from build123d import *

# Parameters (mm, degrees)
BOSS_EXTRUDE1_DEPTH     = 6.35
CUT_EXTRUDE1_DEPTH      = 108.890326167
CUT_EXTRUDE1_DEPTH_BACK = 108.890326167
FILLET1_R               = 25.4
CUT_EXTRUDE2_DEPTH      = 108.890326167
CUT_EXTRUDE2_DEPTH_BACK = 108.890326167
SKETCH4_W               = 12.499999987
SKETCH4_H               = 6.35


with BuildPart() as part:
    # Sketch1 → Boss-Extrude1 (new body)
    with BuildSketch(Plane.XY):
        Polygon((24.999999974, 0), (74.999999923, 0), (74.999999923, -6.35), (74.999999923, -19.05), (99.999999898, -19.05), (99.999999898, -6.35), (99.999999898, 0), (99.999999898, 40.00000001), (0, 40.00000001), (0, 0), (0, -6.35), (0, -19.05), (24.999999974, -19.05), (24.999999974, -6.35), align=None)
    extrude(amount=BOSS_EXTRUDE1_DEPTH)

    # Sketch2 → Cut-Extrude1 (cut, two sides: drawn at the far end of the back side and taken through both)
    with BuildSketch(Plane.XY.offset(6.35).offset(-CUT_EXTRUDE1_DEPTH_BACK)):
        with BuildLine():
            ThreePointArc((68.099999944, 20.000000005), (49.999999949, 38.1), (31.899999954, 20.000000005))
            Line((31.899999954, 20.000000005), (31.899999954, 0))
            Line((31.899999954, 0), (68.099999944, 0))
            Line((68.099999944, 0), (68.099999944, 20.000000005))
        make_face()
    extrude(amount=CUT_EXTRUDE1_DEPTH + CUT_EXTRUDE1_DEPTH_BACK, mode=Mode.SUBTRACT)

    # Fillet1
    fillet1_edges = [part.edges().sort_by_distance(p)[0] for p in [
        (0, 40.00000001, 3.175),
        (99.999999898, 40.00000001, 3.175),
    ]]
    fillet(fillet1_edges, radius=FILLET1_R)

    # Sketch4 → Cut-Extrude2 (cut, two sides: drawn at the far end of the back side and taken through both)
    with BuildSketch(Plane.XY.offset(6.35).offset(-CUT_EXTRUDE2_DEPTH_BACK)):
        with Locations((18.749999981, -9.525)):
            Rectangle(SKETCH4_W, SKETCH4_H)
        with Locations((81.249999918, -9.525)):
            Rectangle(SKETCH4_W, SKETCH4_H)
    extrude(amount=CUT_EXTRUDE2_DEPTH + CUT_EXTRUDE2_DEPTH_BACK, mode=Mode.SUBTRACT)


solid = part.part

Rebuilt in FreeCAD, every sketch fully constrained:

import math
import FreeCAD as App
import Part
import Sketcher
Q = App.Units.Quantity


def edges_at(feature, points):
    """Names of the edges that pass closest to the given points."""
    edges = feature.Shape.Edges
    near = lambda p: min(range(len(edges)), key=lambda i: edges[i].distToShape(Part.Vertex(*p))[0])
    return sorted({f"Edge{near(p) + 1}" for p in points})

doc = App.newDocument("Part")
params = doc.addObject("Spreadsheet::Sheet", "Params")
for row, (alias, value) in enumerate([
    ("sketch1_width", "50 mm"),
    ("sketch1_width2", "25 mm"),
    ("sketch1_height", "19.05 mm"),
    ("pad1_length", "6.35 mm"),
    ("sketch2_radius", "18.1 mm"),
    ("sketch2_height", "20 mm"),
    ("fillet_radius", "25.4 mm"),
    ("sketch3_width", "12.5 mm"),
    ("sketch3_height", "6.35 mm"),
], start=1):
    params.set(f"A{row}", alias)
    params.set(f"B{row}", "=" + value)
    params.setAlias(f"B{row}", alias)

body = doc.addObject("PartDesign::Body", "Body")

sketch1 = body.newObject("Sketcher::SketchObject", "Sketch")
sketch1.AttachmentSupport = (doc.getObject("XY_Plane"), [""])
sketch1.MapMode = "FlatFace"
sketch1.addGeometry([
    Part.LineSegment(App.Vector(25, 0, 0), App.Vector(75, 0, 0)),
    Part.LineSegment(App.Vector(75, 0, 0), App.Vector(75, -19, 0)),
    Part.LineSegment(App.Vector(75, -19, 0), App.Vector(100, -19, 0)),
    Part.LineSegment(App.Vector(100, -19, 0), App.Vector(100, 40, 0)),
    Part.LineSegment(App.Vector(100, 40, 0), App.Vector(0, 40, 0)),
    Part.LineSegment(App.Vector(0, 40, 0), App.Vector(0, -19, 0)),
    Part.LineSegment(App.Vector(0, -19, 0), App.Vector(25, -19, 0)),
    Part.LineSegment(App.Vector(25, -19, 0), App.Vector(25, 0, 0)),
], False)
sketch1.addConstraint([
    Sketcher.Constraint("Coincident", 0, 2, 1, 1),
    Sketcher.Constraint("Coincident", 1, 2, 2, 1),
    Sketcher.Constraint("Coincident", 2, 2, 3, 1),
    Sketcher.Constraint("Coincident", 3, 2, 4, 1),
    Sketcher.Constraint("Coincident", 4, 2, 5, 1),
    Sketcher.Constraint("Coincident", 5, 2, 6, 1),
    Sketcher.Constraint("Coincident", 6, 2, 7, 1),
    Sketcher.Constraint("Coincident", 7, 2, 0, 1),
    Sketcher.Constraint("Horizontal", 0),
    Sketcher.Constraint("Vertical", 1),
    Sketcher.Constraint("Horizontal", 2),
    Sketcher.Constraint("Vertical", 3),
    Sketcher.Constraint("Horizontal", 4),
    Sketcher.Constraint("Vertical", 5),
    Sketcher.Constraint("Horizontal", 6),
    Sketcher.Constraint("Vertical", 7),
    Sketcher.Constraint("PointOnObject", 0, 2, -1),
    Sketcher.Constraint("PointOnObject", 4, 2, -2),
    Sketcher.Constraint("Horizontal", 2, 2, 5, 2),
    Sketcher.Constraint("Equal", 2, 6),
    Sketcher.Constraint("DistanceX", 0, 1, 0, 2, Q("50 mm")),
    Sketcher.Constraint("DistanceX", 2, 1, 2, 2, Q("25 mm")),
    Sketcher.Constraint("DistanceY", -1, 1, 3, 2, Q("40 mm")),
    Sketcher.Constraint("DistanceY", 1, 2, 1, 1, Q("19.05 mm")),
])
sketch1.setExpression("Constraints[20]", "Params.sketch1_width")
sketch1.setExpression("Constraints[21]", "Params.sketch1_width2")
sketch1.setExpression("Constraints[23]", "Params.sketch1_height")
pad1 = body.newObject("PartDesign::Pad", "Pad")
pad1.Profile = sketch1
pad1.setExpression("Length", "Params.pad1_length")

sketch2 = body.newObject("Sketcher::SketchObject", "Sketch001")
sketch2.AttachmentSupport = (doc.getObject("XY_Plane"), [""])
sketch2.MapMode = "FlatFace"
sketch2.AttachmentOffset = App.Placement(App.Vector(0, 0, 6.35), App.Rotation())
sketch2.addGeometry([
    Part.ArcOfCircle(Part.Circle(App.Vector(50, 20, 0), App.Vector(0, 0, 1), 18), math.radians(0), math.radians(180)),
    Part.LineSegment(App.Vector(32, 20, 0), App.Vector(32, 0, 0)),
    Part.LineSegment(App.Vector(32, 0, 0), App.Vector(68, 0, 0)),
    Part.LineSegment(App.Vector(68, 0, 0), App.Vector(68, 20, 0)),
], False)
sketch2.addConstraint([
    Sketcher.Constraint("Tangent", 0, 2, 1, 1),
    Sketcher.Constraint("Coincident", 1, 2, 2, 1),
    Sketcher.Constraint("Coincident", 2, 2, 3, 1),
    Sketcher.Constraint("Tangent", 3, 2, 0, 1),
    Sketcher.Constraint("Vertical", 1),
    Sketcher.Constraint("Horizontal", 2),
    Sketcher.Constraint("Vertical", 3),
    Sketcher.Constraint("PointOnObject", 1, 2, -1),
    Sketcher.Constraint("Radius", 0, Q("18.1 mm")),
    Sketcher.Constraint("DistanceY", 1, 2, 1, 1, Q("20 mm")),
    Sketcher.Constraint("DistanceX", -1, 1, 0, 3, Q("50 mm")),
])
sketch2.setExpression("Constraints[8]", "Params.sketch2_radius")
sketch2.setExpression("Constraints[9]", "Params.sketch2_height")
pocket1 = body.newObject("PartDesign::Pocket", "Pocket")
pocket1.Profile = sketch2
pocket1.Type = "ThroughAll"
pocket1.Midplane = True
doc.recompute()

fillet = body.newObject("PartDesign::Fillet", "Fillet")
fillet.Base = (pocket1, edges_at(pocket1, [(0, 40, 3.175), (100, 40, 3.175)]))
fillet.setExpression("Radius", "Params.fillet_radius")

sketch3 = body.newObject("Sketcher::SketchObject", "Sketch002")
sketch3.AttachmentSupport = (doc.getObject("XY_Plane"), [""])
sketch3.MapMode = "FlatFace"
sketch3.AttachmentOffset = App.Placement(App.Vector(0, 0, 6.35), App.Rotation())
sketch3.addGeometry([
    Part.LineSegment(App.Vector(12, -6, 0), App.Vector(12, -13, 0)),
    Part.LineSegment(App.Vector(12, -13, 0), App.Vector(25, -13, 0)),
    Part.LineSegment(App.Vector(25, -13, 0), App.Vector(25, -6, 0)),
    Part.LineSegment(App.Vector(25, -6, 0), App.Vector(12, -6, 0)),
    Part.LineSegment(App.Vector(75, -6, 0), App.Vector(75, -13, 0)),
    Part.LineSegment(App.Vector(75, -13, 0), App.Vector(87, -13, 0)),
    Part.LineSegment(App.Vector(87, -13, 0), App.Vector(87, -6, 0)),
    Part.LineSegment(App.Vector(87, -6, 0), App.Vector(75, -6, 0)),
], False)
sketch3.addConstraint([
    Sketcher.Constraint("Coincident", 0, 2, 1, 1),
    Sketcher.Constraint("Coincident", 1, 2, 2, 1),
    Sketcher.Constraint("Coincident", 2, 2, 3, 1),
    Sketcher.Constraint("Coincident", 3, 2, 0, 1),
    Sketcher.Constraint("Coincident", 4, 2, 5, 1),
    Sketcher.Constraint("Coincident", 5, 2, 6, 1),
    Sketcher.Constraint("Coincident", 6, 2, 7, 1),
    Sketcher.Constraint("Coincident", 7, 2, 4, 1),
    Sketcher.Constraint("Vertical", 0),
    Sketcher.Constraint("Horizontal", 1),
    Sketcher.Constraint("Vertical", 2),
    Sketcher.Constraint("Horizontal", 3),
    Sketcher.Constraint("Vertical", 4),
    Sketcher.Constraint("Horizontal", 5),
    Sketcher.Constraint("Vertical", 6),
    Sketcher.Constraint("Horizontal", 7),
    Sketcher.Constraint("Horizontal", 1, 2, 4, 2),
    Sketcher.Constraint("Horizontal", 3, 2, 6, 2),
    Sketcher.Constraint("Equal", 3, 5),
    Sketcher.Constraint("DistanceX", 1, 1, 1, 2, Q("12.5 mm")),
    Sketcher.Constraint("DistanceX", -1, 1, 1, 2, Q("25 mm")),
    Sketcher.Constraint("DistanceX", -1, 1, 4, 2, Q("75 mm")),
    Sketcher.Constraint("DistanceY", 0, 2, 0, 1, Q("6.35 mm")),
    Sketcher.Constraint("DistanceY", 0, 2, -1, 1, Q("12.7 mm")),
])
sketch3.setExpression("Constraints[19]", "Params.sketch3_width")
sketch3.setExpression("Constraints[22]", "Params.sketch3_height")
pocket2 = body.newObject("PartDesign::Pocket", "Pocket001")
pocket2.Profile = sketch3
pocket2.Type = "ThroughAll"
pocket2.Midplane = True

doc.recompute()
